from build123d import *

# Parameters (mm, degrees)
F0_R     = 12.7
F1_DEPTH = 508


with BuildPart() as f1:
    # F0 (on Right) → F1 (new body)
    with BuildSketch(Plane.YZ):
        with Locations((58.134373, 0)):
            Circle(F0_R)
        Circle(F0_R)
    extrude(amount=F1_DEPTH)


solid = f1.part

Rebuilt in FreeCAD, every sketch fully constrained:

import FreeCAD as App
import Part
import Sketcher

V = App.Vector
Q = App.Units.Quantity

doc = App.newDocument("Part")
body = doc.addObject("PartDesign::Body", "Body")
body.AllowCompound = True

# Sketch on YZ plane
sketch1 = doc.addObject("Sketcher::SketchObject", "Sketch")
body.addObject(sketch1)
sketch1.AttachmentSupport = (doc.YZ_Plane, [""])
sketch1.MapMode = "FlatFace"
sketch1.addGeometry([
    Part.Circle(V(58.134373, 0, 0), V(0, 0, 1), 12.7),
    Part.Circle(V(0, 0, 0), V(0, 0, 1), 12.7),
], False)
sketch1.addConstraint([
    Sketcher.Constraint("Coincident", 1, 3, -1, 1),
    Sketcher.Constraint("Equal", 0, 1),
    Sketcher.Constraint("PointOnObject", 0, 3, -1),
    Sketcher.Constraint("Diameter", 0, Q("1 in")),
    Sketcher.Constraint("DistanceX", -1, 1, 0, 3, 58.134373),
])
pad1 = doc.addObject("PartDesign::Pad", "Pad")
body.addObject(pad1)
pad1.Profile = sketch1
pad1.Length = Q("20 in")

doc.recompute()
